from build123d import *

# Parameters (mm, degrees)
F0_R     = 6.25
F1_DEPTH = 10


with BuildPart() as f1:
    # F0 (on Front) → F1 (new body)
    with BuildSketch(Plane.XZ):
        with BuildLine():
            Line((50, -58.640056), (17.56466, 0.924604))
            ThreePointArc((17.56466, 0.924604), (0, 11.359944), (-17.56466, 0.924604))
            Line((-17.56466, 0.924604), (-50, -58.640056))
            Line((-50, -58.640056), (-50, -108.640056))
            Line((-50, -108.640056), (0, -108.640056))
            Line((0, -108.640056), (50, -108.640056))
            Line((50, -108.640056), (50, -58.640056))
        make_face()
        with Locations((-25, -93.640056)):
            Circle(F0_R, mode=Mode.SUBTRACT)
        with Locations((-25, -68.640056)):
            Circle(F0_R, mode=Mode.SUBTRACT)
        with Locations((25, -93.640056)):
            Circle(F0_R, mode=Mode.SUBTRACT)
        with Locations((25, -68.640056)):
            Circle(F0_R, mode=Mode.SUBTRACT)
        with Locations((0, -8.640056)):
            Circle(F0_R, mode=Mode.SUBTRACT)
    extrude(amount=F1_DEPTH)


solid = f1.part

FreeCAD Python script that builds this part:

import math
import FreeCAD as App
import Part
import Sketcher
from FreeCAD import Vector

doc = App.newDocument("Part")
body = doc.addObject("PartDesign::Body", "Body")

sketch1 = body.newObject("Sketcher::SketchObject", "Sketch")
sketch1.AttachmentSupport = (doc.getObject("XZ_Plane"), [""])
sketch1.MapMode = "FlatFace"
sketch1.addGeometry(Part.LineSegment(Vector(50, -59, 0), Vector(18, 1, 0)), False)
sketch1.addGeometry(Part.ArcOfCircle(Part.Circle(Vector(0, -9, 0), Vector(0, 0, 1), 20), math.radians(29), math.radians(151)), False)
sketch1.addGeometry(Part.LineSegment(Vector(-18, 1, 0), Vector(-50, -59, 0)), False)
sketch1.addGeometry(Part.LineSegment(Vector(-50, -59, 0), Vector(-50, -109, 0)), False)
sketch1.addGeometry(Part.LineSegment(Vector(-50, -109, 0), Vector(50, -109, 0)), False)
sketch1.addGeometry(Part.LineSegment(Vector(50, -109, 0), Vector(50, -59, 0)), False)
sketch1.addGeometry(Part.Circle(Vector(-25, -94, 0), Vector(0, 0, 1), 6), False)
sketch1.addGeometry(Part.Circle(Vector(-25, -69, 0), Vector(0, 0, 1), 6), False)
sketch1.addGeometry(Part.Circle(Vector(25, -94, 0), Vector(0, 0, 1), 6), False)
sketch1.addGeometry(Part.Circle(Vector(25, -69, 0), Vector(0, 0, 1), 6), False)
sketch1.addGeometry(Part.Circle(Vector(0, -9, 0), Vector(0, 0, 1), 6), False)
sketch1.addConstraint(Sketcher.Constraint("Tangent", 0, 2, 1, 1))
sketch1.addConstraint(Sketcher.Constraint("Tangent", 1, 2, 2, 1))
sketch1.addConstraint(Sketcher.Constraint("Coincident", 2, 2, 3, 1))
sketch1.addConstraint(Sketcher.Constraint("Coincident", 3, 2, 4, 1))
sketch1.addConstraint(Sketcher.Constraint("Coincident", 4, 2, 5, 1))
sketch1.addConstraint(Sketcher.Constraint("Coincident", 5, 2, 0, 1))
sketch1.addConstraint(Sketcher.Constraint("Vertical", 3))
sketch1.addConstraint(Sketcher.Constraint("Horizontal", 4))
sketch1.addConstraint(Sketcher.Constraint("Vertical", 5))
sketch1.addConstraint(Sketcher.Constraint("Coincident", 10, 3, 1, 3))
sketch1.addConstraint(Sketcher.Constraint("Equal", 6, 7))
sketch1.addConstraint(Sketcher.Constraint("Equal", 7, 8))
sketch1.addConstraint(Sketcher.Constraint("Equal", 8, 9))
sketch1.addConstraint(Sketcher.Constraint("Equal", 9, 10))
sketch1.addConstraint(Sketcher.Constraint("Symmetric", 6, 3, 8, 3, -2))
sketch1.addConstraint(Sketcher.Constraint("Symmetric", 7, 3, 9, 3, -2))
sketch1.addConstraint(Sketcher.Constraint("Symmetric", 0, 2, 1, 2, -2))
sketch1.addConstraint(Sketcher.Constraint("Horizontal", 2, 2, 5, 2))
sketch1.addConstraint(Sketcher.Constraint("Vertical", 6, 3, 7, 3))
sketch1.addConstraint(Sketcher.Constraint("Radius", 1, 20.0))
sketch1.addConstraint(Sketcher.Constraint("Diameter", 6, 12.5))
sketch1.addConstraint(Sketcher.Constraint("DistanceX", 4, 1, 4, 2, 100.0))
sketch1.addConstraint(Sketcher.Constraint("DistanceY", 3, 2, 3, 1, 50.0))
sketch1.addConstraint(Sketcher.Constraint("DistanceX", 6, 3, -1, 1, 25.0))
sketch1.addConstraint(Sketcher.Constraint("DistanceY", 6, 3, 1, 3, 85.0))
sketch1.addConstraint(Sketcher.Constraint("DistanceY", 6, 3, 7, 3, 25.0))
sketch1.addConstraint(Sketcher.Constraint("DistanceY", 7, 3, 2, 2, 10.0))
sketch1.addConstraint(Sketcher.Constraint("DistanceY", 1, 3, -1, 1, 8.640056))
pad1 = body.newObject("PartDesign::Pad", "Pad")
pad1.Profile = sketch1
pad1.Length = 10

doc.recompute()
